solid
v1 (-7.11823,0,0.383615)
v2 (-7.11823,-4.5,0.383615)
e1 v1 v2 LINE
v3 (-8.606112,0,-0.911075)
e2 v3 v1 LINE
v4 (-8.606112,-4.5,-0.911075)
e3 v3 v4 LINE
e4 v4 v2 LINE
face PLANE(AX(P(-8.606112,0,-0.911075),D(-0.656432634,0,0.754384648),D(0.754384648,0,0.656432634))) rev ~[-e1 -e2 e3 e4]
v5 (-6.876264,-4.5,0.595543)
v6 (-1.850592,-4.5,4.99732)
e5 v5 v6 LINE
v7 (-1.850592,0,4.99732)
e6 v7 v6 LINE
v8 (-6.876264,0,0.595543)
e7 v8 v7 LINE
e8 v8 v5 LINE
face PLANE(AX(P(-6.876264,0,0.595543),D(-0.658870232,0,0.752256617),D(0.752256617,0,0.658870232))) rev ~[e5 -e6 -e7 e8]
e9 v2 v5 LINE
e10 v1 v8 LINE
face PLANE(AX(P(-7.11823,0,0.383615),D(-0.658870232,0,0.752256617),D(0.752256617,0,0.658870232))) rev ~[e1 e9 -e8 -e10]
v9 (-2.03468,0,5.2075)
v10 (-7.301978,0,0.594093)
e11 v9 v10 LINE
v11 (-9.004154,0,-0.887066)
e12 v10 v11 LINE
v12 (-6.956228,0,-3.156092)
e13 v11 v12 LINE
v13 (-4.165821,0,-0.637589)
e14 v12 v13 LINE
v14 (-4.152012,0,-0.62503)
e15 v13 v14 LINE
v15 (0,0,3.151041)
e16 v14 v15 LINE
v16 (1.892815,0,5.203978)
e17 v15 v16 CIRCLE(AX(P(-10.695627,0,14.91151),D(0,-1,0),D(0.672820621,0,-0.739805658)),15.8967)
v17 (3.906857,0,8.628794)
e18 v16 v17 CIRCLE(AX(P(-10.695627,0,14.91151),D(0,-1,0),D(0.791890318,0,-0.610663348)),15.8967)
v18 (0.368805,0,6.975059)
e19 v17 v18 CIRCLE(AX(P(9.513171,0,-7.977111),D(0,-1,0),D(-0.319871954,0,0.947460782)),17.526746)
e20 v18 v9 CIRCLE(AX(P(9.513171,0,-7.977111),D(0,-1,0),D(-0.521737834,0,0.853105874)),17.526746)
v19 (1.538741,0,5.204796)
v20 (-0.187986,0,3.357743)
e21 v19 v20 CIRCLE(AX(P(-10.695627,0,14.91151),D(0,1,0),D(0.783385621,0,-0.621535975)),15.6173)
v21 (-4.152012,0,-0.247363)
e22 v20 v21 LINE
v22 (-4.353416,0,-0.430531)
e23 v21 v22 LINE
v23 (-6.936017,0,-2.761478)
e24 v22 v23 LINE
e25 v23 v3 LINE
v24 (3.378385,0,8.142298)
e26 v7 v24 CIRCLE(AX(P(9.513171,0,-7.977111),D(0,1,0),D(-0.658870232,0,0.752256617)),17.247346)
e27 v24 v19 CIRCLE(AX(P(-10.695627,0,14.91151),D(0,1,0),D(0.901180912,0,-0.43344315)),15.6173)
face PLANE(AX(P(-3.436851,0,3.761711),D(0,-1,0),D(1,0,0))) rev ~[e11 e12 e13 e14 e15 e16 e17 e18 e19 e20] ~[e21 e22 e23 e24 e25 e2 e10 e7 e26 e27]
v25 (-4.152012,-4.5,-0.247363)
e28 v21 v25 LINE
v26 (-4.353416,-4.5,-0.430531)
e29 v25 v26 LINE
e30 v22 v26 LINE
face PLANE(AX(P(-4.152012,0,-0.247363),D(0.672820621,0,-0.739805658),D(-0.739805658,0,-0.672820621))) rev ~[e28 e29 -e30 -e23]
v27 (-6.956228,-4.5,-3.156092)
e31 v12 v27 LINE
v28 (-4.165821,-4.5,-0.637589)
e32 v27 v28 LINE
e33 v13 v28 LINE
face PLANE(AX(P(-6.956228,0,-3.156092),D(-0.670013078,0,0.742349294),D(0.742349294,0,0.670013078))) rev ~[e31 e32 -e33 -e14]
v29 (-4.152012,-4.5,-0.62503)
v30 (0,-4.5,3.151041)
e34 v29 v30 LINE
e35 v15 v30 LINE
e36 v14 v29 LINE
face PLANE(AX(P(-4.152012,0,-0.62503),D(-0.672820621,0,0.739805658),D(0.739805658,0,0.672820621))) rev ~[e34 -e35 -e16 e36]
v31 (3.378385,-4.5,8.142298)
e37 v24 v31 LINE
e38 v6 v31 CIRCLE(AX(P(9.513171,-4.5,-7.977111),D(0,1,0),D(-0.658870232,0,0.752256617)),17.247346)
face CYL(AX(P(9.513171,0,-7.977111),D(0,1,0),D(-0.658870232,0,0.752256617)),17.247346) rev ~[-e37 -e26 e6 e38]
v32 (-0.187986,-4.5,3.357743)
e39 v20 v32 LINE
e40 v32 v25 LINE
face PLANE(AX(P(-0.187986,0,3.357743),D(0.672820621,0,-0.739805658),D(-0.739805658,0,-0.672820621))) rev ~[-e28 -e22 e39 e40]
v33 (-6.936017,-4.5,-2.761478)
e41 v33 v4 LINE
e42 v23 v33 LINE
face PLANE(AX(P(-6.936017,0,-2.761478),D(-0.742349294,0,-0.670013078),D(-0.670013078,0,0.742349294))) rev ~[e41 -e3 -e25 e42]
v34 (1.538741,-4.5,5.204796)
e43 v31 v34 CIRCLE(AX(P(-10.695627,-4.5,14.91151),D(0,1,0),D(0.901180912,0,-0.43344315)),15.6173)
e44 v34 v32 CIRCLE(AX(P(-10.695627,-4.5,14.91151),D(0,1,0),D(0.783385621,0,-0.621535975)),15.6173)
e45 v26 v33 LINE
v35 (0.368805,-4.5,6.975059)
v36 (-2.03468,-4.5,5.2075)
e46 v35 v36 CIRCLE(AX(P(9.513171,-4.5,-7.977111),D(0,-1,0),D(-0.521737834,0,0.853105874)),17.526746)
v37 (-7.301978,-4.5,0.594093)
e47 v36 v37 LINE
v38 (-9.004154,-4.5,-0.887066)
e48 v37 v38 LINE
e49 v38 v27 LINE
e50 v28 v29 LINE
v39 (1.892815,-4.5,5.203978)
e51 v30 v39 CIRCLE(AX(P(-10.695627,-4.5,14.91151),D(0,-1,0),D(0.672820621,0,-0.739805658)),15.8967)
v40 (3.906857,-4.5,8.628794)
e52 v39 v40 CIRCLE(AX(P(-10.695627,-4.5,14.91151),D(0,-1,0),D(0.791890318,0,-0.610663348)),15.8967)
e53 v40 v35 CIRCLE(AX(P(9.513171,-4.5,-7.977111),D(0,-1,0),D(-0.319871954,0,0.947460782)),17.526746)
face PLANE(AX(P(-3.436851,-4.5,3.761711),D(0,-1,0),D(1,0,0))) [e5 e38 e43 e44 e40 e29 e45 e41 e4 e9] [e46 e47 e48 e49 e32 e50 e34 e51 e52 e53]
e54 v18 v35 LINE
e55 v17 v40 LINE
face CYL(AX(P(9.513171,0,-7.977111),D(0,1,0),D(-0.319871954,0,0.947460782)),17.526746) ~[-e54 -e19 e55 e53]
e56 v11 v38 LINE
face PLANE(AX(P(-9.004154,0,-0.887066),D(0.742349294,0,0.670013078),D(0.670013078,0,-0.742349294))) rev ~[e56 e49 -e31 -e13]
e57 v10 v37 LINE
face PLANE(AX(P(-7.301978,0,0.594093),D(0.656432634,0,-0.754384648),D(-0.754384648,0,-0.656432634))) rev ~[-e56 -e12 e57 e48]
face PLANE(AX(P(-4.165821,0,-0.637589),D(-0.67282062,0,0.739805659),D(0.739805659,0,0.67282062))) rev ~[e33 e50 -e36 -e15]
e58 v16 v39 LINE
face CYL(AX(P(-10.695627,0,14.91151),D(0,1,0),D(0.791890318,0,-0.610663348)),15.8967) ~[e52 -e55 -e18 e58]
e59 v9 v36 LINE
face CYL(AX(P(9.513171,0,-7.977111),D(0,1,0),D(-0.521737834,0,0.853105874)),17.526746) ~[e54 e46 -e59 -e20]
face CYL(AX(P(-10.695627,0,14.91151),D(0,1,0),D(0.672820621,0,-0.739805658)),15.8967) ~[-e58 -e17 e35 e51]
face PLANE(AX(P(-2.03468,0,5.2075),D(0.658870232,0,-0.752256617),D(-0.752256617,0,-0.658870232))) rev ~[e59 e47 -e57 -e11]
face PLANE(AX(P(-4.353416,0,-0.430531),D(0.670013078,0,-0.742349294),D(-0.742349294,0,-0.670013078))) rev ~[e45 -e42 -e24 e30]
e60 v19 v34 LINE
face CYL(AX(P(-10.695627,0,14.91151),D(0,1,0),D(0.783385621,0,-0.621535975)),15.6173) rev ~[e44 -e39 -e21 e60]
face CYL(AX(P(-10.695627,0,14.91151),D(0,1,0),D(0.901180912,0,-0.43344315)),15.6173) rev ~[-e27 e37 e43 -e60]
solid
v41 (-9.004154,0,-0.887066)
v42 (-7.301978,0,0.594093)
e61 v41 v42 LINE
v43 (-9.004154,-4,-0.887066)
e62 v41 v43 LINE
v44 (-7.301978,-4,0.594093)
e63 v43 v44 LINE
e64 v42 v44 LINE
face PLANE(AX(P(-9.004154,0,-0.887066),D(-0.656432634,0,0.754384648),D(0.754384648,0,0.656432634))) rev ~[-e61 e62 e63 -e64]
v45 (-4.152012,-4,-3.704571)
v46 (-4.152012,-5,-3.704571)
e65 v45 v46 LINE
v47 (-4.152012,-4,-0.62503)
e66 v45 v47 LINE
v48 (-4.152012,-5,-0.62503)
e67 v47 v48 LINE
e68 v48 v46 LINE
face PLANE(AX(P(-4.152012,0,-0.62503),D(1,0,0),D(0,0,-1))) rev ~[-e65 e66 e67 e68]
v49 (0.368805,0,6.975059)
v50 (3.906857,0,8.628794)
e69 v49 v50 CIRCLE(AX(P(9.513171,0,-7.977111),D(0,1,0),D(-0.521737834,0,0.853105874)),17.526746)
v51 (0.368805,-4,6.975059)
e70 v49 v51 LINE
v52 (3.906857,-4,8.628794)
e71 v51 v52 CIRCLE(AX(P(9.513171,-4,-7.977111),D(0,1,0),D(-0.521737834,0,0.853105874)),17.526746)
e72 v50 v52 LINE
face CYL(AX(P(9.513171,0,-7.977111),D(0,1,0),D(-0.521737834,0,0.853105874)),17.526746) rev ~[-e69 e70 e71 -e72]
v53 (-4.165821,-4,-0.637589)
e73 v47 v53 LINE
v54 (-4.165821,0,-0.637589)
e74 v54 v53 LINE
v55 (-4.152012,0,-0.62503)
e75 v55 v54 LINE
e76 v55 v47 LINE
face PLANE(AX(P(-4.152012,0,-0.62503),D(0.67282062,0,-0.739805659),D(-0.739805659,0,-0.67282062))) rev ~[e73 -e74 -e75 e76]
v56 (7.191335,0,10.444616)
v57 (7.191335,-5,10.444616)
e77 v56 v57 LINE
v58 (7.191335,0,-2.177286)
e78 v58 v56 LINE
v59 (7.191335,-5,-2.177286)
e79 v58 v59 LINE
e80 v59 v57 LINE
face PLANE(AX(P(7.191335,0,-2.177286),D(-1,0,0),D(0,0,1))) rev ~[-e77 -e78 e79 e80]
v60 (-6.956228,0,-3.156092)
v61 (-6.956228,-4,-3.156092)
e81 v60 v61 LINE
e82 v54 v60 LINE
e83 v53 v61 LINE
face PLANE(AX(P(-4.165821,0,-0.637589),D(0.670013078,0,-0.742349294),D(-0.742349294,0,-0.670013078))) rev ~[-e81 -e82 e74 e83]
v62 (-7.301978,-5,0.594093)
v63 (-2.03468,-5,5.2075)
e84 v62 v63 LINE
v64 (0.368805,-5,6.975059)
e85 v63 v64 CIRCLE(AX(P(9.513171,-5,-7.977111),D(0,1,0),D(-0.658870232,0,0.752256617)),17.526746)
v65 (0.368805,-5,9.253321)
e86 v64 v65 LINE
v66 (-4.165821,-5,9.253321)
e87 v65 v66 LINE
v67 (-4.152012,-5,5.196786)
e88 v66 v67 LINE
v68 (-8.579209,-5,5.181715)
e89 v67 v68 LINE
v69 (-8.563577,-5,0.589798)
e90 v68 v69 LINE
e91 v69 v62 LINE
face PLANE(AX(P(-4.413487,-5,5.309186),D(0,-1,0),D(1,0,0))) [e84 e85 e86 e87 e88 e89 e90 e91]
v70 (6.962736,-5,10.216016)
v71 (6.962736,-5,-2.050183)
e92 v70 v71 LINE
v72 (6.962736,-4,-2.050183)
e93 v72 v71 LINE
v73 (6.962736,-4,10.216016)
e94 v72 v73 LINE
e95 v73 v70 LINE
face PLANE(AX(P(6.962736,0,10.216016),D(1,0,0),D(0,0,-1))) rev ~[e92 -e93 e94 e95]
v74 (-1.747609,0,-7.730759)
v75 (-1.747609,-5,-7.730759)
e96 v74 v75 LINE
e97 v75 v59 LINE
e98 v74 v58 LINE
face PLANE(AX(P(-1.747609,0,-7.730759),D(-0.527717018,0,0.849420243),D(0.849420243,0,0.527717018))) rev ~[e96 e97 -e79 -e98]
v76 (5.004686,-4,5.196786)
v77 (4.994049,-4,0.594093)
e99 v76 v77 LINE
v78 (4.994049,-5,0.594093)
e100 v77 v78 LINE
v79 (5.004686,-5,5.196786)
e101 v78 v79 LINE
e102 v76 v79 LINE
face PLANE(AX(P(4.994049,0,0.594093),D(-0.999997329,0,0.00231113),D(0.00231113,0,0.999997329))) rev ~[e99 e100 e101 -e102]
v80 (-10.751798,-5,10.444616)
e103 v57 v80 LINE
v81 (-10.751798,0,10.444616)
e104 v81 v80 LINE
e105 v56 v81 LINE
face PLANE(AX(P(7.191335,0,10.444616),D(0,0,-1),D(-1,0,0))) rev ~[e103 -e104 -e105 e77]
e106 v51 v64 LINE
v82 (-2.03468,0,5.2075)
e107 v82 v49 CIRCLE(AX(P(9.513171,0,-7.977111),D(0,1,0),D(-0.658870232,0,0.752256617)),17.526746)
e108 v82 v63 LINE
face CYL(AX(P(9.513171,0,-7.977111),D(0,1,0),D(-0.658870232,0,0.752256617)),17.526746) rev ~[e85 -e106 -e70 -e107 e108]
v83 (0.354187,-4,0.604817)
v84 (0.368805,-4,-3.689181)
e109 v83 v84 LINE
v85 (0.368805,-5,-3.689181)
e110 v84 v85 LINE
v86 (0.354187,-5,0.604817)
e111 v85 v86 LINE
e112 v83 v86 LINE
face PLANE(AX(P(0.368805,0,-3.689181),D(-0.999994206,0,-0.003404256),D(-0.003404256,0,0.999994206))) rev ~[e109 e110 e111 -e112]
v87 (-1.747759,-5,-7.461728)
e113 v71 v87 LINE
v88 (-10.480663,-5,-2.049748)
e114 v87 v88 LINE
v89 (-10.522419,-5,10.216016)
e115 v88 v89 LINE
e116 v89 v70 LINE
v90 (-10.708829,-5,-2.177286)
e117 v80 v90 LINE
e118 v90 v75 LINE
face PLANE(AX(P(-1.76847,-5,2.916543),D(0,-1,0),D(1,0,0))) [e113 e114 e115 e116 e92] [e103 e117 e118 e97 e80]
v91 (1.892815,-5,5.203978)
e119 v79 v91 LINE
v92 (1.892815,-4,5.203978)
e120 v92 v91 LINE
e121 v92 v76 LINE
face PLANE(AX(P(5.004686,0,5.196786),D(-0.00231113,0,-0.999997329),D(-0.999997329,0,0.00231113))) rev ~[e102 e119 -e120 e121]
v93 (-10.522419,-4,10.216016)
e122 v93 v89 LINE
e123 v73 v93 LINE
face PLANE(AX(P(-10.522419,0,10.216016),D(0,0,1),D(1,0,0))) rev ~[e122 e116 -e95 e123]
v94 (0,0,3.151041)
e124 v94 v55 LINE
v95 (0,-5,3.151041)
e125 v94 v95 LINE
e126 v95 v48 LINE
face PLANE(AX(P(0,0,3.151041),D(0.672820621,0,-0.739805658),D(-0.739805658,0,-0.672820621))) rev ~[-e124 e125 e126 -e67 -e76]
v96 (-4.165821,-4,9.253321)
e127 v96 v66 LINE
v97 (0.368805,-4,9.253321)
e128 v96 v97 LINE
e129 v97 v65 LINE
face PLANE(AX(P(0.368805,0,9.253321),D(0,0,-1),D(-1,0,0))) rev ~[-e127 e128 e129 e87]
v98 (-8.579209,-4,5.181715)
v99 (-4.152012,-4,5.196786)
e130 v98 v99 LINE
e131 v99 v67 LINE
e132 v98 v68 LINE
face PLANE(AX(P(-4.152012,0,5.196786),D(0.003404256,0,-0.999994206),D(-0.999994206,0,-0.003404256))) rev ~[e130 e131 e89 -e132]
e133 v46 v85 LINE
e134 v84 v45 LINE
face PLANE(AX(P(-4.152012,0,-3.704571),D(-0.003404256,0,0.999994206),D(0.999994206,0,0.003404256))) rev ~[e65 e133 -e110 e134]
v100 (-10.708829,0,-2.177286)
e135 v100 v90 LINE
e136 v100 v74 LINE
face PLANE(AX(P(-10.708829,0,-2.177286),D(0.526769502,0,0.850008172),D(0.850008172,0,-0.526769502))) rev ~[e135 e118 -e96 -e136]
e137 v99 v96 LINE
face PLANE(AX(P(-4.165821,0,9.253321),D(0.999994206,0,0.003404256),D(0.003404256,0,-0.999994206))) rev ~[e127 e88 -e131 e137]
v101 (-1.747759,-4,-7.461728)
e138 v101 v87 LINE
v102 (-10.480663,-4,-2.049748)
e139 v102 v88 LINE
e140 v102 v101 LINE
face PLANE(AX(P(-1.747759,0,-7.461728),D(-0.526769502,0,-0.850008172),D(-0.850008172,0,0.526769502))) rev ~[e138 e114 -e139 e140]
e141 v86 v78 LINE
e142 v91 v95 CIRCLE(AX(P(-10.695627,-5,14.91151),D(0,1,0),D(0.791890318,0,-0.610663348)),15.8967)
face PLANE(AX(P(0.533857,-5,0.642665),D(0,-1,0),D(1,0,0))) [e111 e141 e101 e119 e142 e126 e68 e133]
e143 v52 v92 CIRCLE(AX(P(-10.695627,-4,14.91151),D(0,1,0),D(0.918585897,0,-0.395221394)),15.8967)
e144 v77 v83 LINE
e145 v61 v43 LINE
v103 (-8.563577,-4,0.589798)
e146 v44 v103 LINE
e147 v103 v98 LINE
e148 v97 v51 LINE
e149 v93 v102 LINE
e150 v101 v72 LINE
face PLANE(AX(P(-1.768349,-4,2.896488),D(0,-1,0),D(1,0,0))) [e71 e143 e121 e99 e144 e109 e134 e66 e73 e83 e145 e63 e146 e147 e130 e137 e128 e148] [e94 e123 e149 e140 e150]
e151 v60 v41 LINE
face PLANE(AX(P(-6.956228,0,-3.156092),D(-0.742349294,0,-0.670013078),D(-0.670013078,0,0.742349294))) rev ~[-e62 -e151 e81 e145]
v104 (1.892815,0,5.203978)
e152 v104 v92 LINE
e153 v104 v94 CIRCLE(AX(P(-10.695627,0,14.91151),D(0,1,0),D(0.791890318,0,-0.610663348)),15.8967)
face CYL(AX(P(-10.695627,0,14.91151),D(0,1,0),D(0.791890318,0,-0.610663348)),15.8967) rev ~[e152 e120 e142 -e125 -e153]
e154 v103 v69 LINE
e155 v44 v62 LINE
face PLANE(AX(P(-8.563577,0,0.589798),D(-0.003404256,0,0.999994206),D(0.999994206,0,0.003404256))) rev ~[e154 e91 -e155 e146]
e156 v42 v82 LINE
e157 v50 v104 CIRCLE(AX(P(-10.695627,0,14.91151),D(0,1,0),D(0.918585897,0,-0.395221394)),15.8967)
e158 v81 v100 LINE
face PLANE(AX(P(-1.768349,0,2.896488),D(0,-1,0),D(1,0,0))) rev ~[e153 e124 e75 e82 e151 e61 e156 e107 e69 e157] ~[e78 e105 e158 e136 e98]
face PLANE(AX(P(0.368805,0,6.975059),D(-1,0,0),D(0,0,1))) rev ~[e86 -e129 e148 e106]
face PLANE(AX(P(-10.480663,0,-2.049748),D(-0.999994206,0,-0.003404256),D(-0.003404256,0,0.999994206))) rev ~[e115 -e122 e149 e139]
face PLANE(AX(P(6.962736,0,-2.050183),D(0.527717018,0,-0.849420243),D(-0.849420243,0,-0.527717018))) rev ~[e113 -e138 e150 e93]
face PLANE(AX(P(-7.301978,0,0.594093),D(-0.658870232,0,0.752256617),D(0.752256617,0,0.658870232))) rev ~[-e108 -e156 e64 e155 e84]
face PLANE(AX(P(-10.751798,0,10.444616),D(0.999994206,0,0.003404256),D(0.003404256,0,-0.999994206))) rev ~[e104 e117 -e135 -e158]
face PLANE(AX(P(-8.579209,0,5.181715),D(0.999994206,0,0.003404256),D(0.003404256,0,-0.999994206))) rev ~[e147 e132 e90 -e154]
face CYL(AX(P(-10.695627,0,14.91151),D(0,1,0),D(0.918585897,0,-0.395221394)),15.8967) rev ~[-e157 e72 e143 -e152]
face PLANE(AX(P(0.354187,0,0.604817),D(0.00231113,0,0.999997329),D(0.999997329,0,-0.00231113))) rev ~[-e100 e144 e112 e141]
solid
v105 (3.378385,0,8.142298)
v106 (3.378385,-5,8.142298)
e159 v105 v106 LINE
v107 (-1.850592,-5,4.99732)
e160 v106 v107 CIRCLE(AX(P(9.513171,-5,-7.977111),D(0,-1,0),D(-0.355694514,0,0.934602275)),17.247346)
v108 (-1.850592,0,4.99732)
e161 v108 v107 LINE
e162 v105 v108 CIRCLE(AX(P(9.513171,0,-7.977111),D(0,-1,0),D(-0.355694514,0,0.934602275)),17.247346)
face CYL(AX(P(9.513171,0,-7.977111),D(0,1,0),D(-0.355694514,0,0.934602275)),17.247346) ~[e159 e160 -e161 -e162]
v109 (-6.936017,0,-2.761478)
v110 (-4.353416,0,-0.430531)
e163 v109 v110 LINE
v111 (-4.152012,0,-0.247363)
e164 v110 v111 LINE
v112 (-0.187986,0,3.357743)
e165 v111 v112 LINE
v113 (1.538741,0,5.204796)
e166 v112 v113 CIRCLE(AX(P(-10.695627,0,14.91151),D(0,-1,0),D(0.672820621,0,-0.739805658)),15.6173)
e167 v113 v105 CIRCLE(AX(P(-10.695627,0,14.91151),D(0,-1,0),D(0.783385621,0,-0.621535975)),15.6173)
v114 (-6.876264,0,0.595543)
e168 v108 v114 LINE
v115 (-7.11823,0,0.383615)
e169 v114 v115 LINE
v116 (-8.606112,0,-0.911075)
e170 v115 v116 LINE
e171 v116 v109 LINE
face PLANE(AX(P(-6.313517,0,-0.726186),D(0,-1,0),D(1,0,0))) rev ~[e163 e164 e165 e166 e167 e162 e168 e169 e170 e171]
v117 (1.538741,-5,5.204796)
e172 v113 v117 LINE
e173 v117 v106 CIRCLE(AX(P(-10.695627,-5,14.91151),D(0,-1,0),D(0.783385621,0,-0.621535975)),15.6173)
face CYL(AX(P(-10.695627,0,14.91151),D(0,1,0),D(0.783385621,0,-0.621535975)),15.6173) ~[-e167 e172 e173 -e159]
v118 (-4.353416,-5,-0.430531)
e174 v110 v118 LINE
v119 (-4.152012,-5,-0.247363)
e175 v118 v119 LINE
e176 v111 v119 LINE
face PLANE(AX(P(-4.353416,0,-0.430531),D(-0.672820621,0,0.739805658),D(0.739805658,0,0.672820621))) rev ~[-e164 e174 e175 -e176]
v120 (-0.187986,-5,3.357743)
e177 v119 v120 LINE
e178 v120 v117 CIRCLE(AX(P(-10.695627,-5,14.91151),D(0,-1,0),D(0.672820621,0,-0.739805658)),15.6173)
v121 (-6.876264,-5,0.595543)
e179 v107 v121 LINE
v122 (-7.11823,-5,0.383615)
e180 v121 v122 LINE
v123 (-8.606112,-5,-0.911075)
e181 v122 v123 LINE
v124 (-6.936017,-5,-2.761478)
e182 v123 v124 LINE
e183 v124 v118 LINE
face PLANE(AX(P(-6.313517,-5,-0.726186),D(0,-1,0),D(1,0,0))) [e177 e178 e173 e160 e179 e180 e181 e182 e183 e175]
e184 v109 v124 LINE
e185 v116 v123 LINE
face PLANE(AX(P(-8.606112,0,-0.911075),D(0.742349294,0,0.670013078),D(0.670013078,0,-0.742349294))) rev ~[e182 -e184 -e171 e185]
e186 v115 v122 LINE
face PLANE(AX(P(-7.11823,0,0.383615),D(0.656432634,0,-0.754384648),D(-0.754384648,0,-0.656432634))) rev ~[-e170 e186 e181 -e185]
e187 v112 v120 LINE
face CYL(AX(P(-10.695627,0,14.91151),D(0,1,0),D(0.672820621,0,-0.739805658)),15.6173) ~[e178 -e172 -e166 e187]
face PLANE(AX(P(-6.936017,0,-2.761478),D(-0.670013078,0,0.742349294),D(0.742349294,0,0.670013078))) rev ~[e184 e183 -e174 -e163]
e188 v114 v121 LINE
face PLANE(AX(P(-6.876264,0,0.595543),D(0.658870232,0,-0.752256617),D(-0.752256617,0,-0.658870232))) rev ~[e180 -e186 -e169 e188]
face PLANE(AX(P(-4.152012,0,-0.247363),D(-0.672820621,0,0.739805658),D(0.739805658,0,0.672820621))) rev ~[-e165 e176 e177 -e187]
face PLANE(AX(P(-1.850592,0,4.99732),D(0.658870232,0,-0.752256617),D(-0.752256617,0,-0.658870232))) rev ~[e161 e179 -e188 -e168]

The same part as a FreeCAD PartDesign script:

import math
import FreeCAD as App
import Part
import Sketcher

V = App.Vector
Q = App.Units.Quantity

doc = App.newDocument("Part")
params = doc.addObject("Spreadsheet::Sheet", "Params")
for row, (alias, value) in enumerate([
    ("pad1_length", "5 mm"),
    ("pad2_length", "4 mm"),
    ("pad3_length", "5 mm"),
    ("pad4_length", "5 mm"),
    ("pad5_length", "4.5 mm"),
], start=1):
    params.set(f"A{row}", alias)
    params.set(f"B{row}", "=" + value)
    params.setAlias(f"B{row}", alias)

body = doc.addObject("PartDesign::Body", "Body")

# Sketch on XZ plane
sketch1 = body.newObject("Sketcher::SketchObject", "Sketch")
sketch1.AttachmentSupport = (doc.getObject("XZ_Plane"), [""])
sketch1.MapMode = "FlatFace"
sketch1.addGeometry([
    Part.LineSegment(V(7.191335, 10.444616, 0), V(-10.751798, 10.444616, 0)),  # 0
    Part.LineSegment(V(-10.751798, 10.444616, 0), V(-10.708829, -2.177286, 0)),  # 1
    Part.LineSegment(V(-10.708829, -2.177286, 0), V(-1.747609, -7.730759, 0)),  # 2
    Part.LineSegment(V(-1.747609, -7.730759, 0), V(7.191335, -2.177286, 0)),  # 3
    Part.LineSegment(V(7.191335, -2.177286, 0), V(7.191335, 10.444616, 0)),  # 4
    Part.LineSegment(V(-1.747759, -7.461728, 0), V(-10.480663, -2.049748, 0)),  # 5
    Part.LineSegment(V(-10.480663, -2.049748, 0), V(-10.522419, 10.216016, 0)),  # 6
    Part.LineSegment(V(-10.522419, 10.216016, 0), V(6.962736, 10.216016, 0)),  # 7
    Part.LineSegment(V(6.962736, 10.216016, 0), V(6.962736, -2.050183, 0)),  # 8
    Part.LineSegment(V(6.962736, -2.050183, 0), V(-1.747759, -7.461728, 0)),  # 9
], False)
sketch1.addConstraint([
    Sketcher.Constraint("Coincident", 0, 2, 1, 1),
    Sketcher.Constraint("Coincident", 1, 2, 2, 1),
    Sketcher.Constraint("Coincident", 2, 2, 3, 1),
    Sketcher.Constraint("Coincident", 3, 2, 4, 1),
    Sketcher.Constraint("Coincident", 4, 2, 0, 1),
    Sketcher.Constraint("Coincident", 5, 2, 6, 1),
    Sketcher.Constraint("Coincident", 6, 2, 7, 1),
    Sketcher.Constraint("Coincident", 7, 2, 8, 1),
    Sketcher.Constraint("Coincident", 8, 2, 9, 1),
    Sketcher.Constraint("Coincident", 9, 2, 5, 1),
    Sketcher.Constraint("Horizontal", 0),
    Sketcher.Constraint("Vertical", 4),
    Sketcher.Constraint("Horizontal", 7),
    Sketcher.Constraint("Vertical", 8),
    Sketcher.Constraint("Parallel", 2, 5),
    Sketcher.Constraint("Parallel", 1, 6),
    Sketcher.Constraint("Parallel", 3, 9),
    Sketcher.Constraint("Horizontal", 1, 2, 3, 2),
    Sketcher.Constraint("DistanceY", 4, 1, 4, 2, Q("12.621902 mm")),
    Sketcher.Constraint("DistanceY", 8, 2, 8, 1, Q("12.266199 mm")),
    Sketcher.Constraint("DistanceY", 6, 2, 0, 2, Q("0.2286 mm")),
    Sketcher.Constraint("DistanceX", 7, 2, 4, 2, Q("0.2286 mm")),
    Sketcher.Constraint("DistanceX", 5, 2, 8, 2, Q("17.443398 mm")),
    Sketcher.Constraint("Distance", 2, Q("10.542511 mm")),
    Sketcher.Constraint("DistanceX", 0, 2, 0, 1, Q("17.943133 mm")),
    Sketcher.Constraint("DistanceX", 7, 1, 7, 2, Q("17.485154 mm")),
    Sketcher.Constraint("DistanceX", 1, 2, -1, 1, Q("10.708829 mm")),
    Sketcher.Constraint("DistanceX", 2, 2, -1, 1, Q("1.747609 mm")),
    Sketcher.Constraint("DistanceY", 2, 2, -1, 1, Q("7.730759 mm")),
    Sketcher.Constraint("DistanceX", 9, 2, -1, 1, Q("1.747759 mm")),
])
pad1 = body.newObject("PartDesign::Pad", "Pad")
pad1.Profile = sketch1
pad1.setExpression("Length", "Params.pad1_length")

# Sketch on XZ plane
sketch2 = body.newObject("Sketcher::SketchObject", "Sketch001")
sketch2.AttachmentSupport = (doc.getObject("XZ_Plane"), [""])
sketch2.MapMode = "FlatFace"
sketch2.addGeometry([
    Part.LineSegment(V(6.962736, 10.216016, 0), V(-10.522419, 10.216016, 0)),  # 0
    Part.LineSegment(V(-10.522419, 10.216016, 0), V(-10.480663, -2.049748, 0)),  # 1
    Part.LineSegment(V(-10.480663, -2.049748, 0), V(-1.747759, -7.461728, 0)),  # 2
    Part.LineSegment(V(-1.747759, -7.461728, 0), V(6.962736, -2.050183, 0)),  # 3
    Part.LineSegment(V(6.962736, -2.050183, 0), V(6.962736, 10.216016, 0)),  # 4
    Part.LineSegment(V(-8.579209, 5.181715, 0), V(-4.152012, 5.196786, 0)),  # 5
    Part.LineSegment(V(-4.152012, 5.196786, 0), V(-4.165821, 9.253321, 0)),  # 6
    Part.LineSegment(V(-4.165821, 9.253321, 0), V(0.368805, 9.253321, 0)),  # 7
    Part.LineSegment(V(0.368805, 9.253321, 0), V(0.368805, 6.975059, 0)),  # 8
    Part.ArcOfCircle(Part.Circle(V(9.513171, -7.977111, 0), V(0, 0, 1), 17.526746), math.radians(108.655181), math.radians(121.448894)),  # 9
    Part.ArcOfCircle(Part.Circle(V(-10.695627, 14.91151, 0), V(0, 0, 1), 15.8967), math.radians(-37.637483), math.radians(-23.279783)),  # 10
    Part.LineSegment(V(1.892815, 5.203978, 0), V(5.004686, 5.196786, 0)),  # 11
    Part.LineSegment(V(5.004686, 5.196786, 0), V(4.994049, 0.594093, 0)),  # 12
    Part.LineSegment(V(4.994049, 0.594093, 0), V(0.354187, 0.604817, 0)),  # 13
    Part.LineSegment(V(0.354187, 0.604817, 0), V(0.368805, -3.689181, 0)),  # 14
    Part.LineSegment(V(0.368805, -3.689181, 0), V(-4.152012, -3.704571, 0)),  # 15
    Part.LineSegment(V(-4.152012, -3.704571, 0), V(-4.152012, -0.62503, 0)),  # 16
    Part.LineSegment(V(-4.152012, -0.62503, 0), V(-4.165821, -0.637589, 0)),  # 17
    Part.LineSegment(V(-4.165821, -0.637589, 0), V(-6.956228, -3.156092, 0)),  # 18
    Part.LineSegment(V(-6.956228, -3.156092, 0), V(-9.004154, -0.887066, 0)),  # 19
    Part.LineSegment(V(-9.004154, -0.887066, 0), V(-7.301978, 0.594093, 0)),  # 20
    Part.LineSegment(V(-7.301978, 0.594093, 0), V(-8.563577, 0.589798, 0)),  # 21
    Part.LineSegment(V(-8.563577, 0.589798, 0), V(-8.579209, 5.181715, 0)),  # 22
], False)
sketch2.addConstraint([
    Sketcher.Constraint("Coincident", 0, 2, 1, 1),
    Sketcher.Constraint("Coincident", 1, 2, 2, 1),
    Sketcher.Constraint("Coincident", 2, 2, 3, 1),
    Sketcher.Constraint("Coincident", 3, 2, 4, 1),
    Sketcher.Constraint("Coincident", 4, 2, 0, 1),
    Sketcher.Constraint("Coincident", 5, 2, 6, 1),
    Sketcher.Constraint("Coincident", 6, 2, 7, 1),
    Sketcher.Constraint("Coincident", 7, 2, 8, 1),
    Sketcher.Constraint("Coincident", 8, 2, 9, 2),
    Sketcher.Constraint("Coincident", 9, 1, 10, 2),
    Sketcher.Constraint("Coincident", 10, 1, 11, 1),
    Sketcher.Constraint("Coincident", 11, 2, 12, 1),
    Sketcher.Constraint("Coincident", 12, 2, 13, 1),
    Sketcher.Constraint("Coincident", 13, 2, 14, 1),
    Sketcher.Constraint("Coincident", 14, 2, 15, 1),
    Sketcher.Constraint("Coincident", 15, 2, 16, 1),
    Sketcher.Constraint("Coincident", 16, 2, 17, 1),
    Sketcher.Constraint("Coincident", 17, 2, 18, 1),
    Sketcher.Constraint("Coincident", 18, 2, 19, 1),
    Sketcher.Constraint("Coincident", 19, 2, 20, 1),
    Sketcher.Constraint("Coincident", 20, 2, 21, 1),
    Sketcher.Constraint("Coincident", 21, 2, 22, 1),
    Sketcher.Constraint("Coincident", 22, 2, 5, 1),
    Sketcher.Constraint("Horizontal", 0),
    Sketcher.Constraint("Vertical", 4),
    Sketcher.Constraint("Horizontal", 7),
    Sketcher.Constraint("Vertical", 8),
    Sketcher.Constraint("Vertical", 16),
    Sketcher.Constraint("Radius", 10, Q("15.8967 mm")),
    Sketcher.Constraint("DistanceY", 4, 1, 4, 2, Q("12.266199 mm")),
    Sketcher.Constraint("Radius", 9, Q("17.526746 mm")),
    Sketcher.Constraint("DistanceY", 14, 2, 3, 2, Q("1.638998 mm")),
    Sketcher.Constraint("DistanceY", 8, 2, 8, 1, Q("2.278262 mm")),
    Sketcher.Constraint("DistanceY", 16, 1, 16, 2, Q("3.079541 mm")),
    Sketcher.Constraint("DistanceY", -1, 1, 21, 2, Q("0.589798 mm")),
    Sketcher.Constraint("DistanceX", 10, 3, 9, 3, Q("20.208799 mm")),
    Sketcher.Constraint("DistanceX", 1, 2, 3, 2, Q("17.443398 mm")),
    Sketcher.Constraint("DistanceY", 12, 2, 9, 1, Q("8.034701 mm")),
    Sketcher.Constraint("DistanceX", 5, 2, 13, 2, Q("4.506198 mm")),
    Sketcher.Constraint("DistanceX", 13, 2, 11, 2, Q("4.650499 mm")),
    Sketcher.Constraint("DistanceX", 15, 2, 13, 2, Q("4.506198 mm")),
    Sketcher.Constraint("DistanceX", 21, 2, 20, 2, Q("1.261599 mm")),
    Sketcher.Constraint("DistanceY", 22, 2, 0, 2, Q("5.034302 mm")),
    Sketcher.Constraint("Distance", 6, Q("4.056559 mm")),
    Sketcher.Constraint("Distance", 11, Q("3.111879 mm")),
    Sketcher.Constraint("DistanceX", 0, 2, 0, 1, Q("17.485154 mm")),
    Sketcher.Constraint("DistanceX", 7, 1, 7, 2, Q("4.534626 mm")),
    Sketcher.Constraint("DistanceX", -1, 1, 9, 3, Q("9.513171 mm")),
    Sketcher.Constraint("DistanceY", 9, 3, -1, 1, Q("7.977111 mm")),
    Sketcher.Constraint("DistanceY", -1, 1, 10, 3, Q("14.91151 mm")),
    Sketcher.Constraint("DistanceX", 0, 2, -1, 1, Q("10.522419 mm")),
    Sketcher.Constraint("DistanceX", 2, 2, -1, 1, Q("1.747759 mm")),
    Sketcher.Constraint("DistanceY", 2, 2, -1, 1, Q("7.461728 mm")),
    Sketcher.Constraint("DistanceX", 5, 2, -1, 1, Q("4.152012 mm")),
    Sketcher.Constraint("DistanceX", 6, 2, -1, 1, Q("4.165821 mm")),
    Sketcher.Constraint("DistanceX", -1, 1, 12, 2, Q("4.994049 mm")),
    Sketcher.Constraint("DistanceY", 14, 2, -1, 1, Q("3.689181 mm")),
    Sketcher.Constraint("DistanceY", 15, 2, -1, 1, Q("3.704571 mm")),
    Sketcher.Constraint("DistanceX", 17, 2, -1, 1, Q("4.165821 mm")),
    Sketcher.Constraint("DistanceY", 17, 2, -1, 1, Q("0.637589 mm")),
    Sketcher.Constraint("DistanceX", 20, 2, -1, 1, Q("7.301978 mm")),
    Sketcher.Constraint("DistanceX", 22, 2, -1, 1, Q("8.579209 mm")),
    Sketcher.Constraint("DistanceY", 2, 2, 1, 2, Q("5.41198 mm")),
    Sketcher.Constraint("DistanceY", 11, 2, 10, 1, Q("0.007192 mm")),
    Sketcher.Constraint("DistanceY", 13, 2, 10, 1, Q("4.599161 mm")),
    Sketcher.Constraint("DistanceX", 14, 2, 3, 2, Q("6.593931 mm")),
    Sketcher.Constraint("DistanceY", 15, 2, 18, 2, Q("0.548479 mm")),
    Sketcher.Constraint("DistanceX", 18, 2, 2, 2, Q("5.208469 mm")),
    Sketcher.Constraint("DistanceX", 1, 2, 19, 2, Q("1.476508 mm")),
    Sketcher.Constraint("DistanceY", 1, 2, 19, 2, Q("1.162681 mm")),
    Sketcher.Constraint("DistanceY", 19, 2, 20, 2, Q("1.48116 mm")),
])
pad2 = body.newObject("PartDesign::Pad", "Pad001")
pad2.Profile = sketch2
pad2.setExpression("Length", "Params.pad2_length")

# Sketch on XZ plane
sketch3 = body.newObject("Sketcher::SketchObject", "Sketch002")
sketch3.AttachmentSupport = (doc.getObject("XZ_Plane"), [""])
sketch3.MapMode = "FlatFace"
sketch3.addGeometry([
    Part.LineSegment(V(0.368805, 9.253321, 0), V(-4.165821, 9.253321, 0)),  # 0
    Part.LineSegment(V(-4.165821, 9.253321, 0), V(-4.152012, 5.196786, 0)),  # 1
    Part.LineSegment(V(-4.152012, 5.196786, 0), V(-8.579209, 5.181715, 0)),  # 2
    Part.LineSegment(V(-8.579209, 5.181715, 0), V(-8.563577, 0.589798, 0)),  # 3
    Part.LineSegment(V(-8.563577, 0.589798, 0), V(-7.301978, 0.594093, 0)),  # 4
    Part.LineSegment(V(-7.301978, 0.594093, 0), V(-2.03468, 5.2075, 0)),  # 5
    Part.ArcOfCircle(Part.Circle(V(9.513171, -7.977111, 0), V(0, 0, 1), 17.526746), math.radians(121.448894), math.radians(131.213767)),  # 6
    Part.LineSegment(V(0.368805, 6.975059, 0), V(0.368805, 9.253321, 0)),  # 7
    Part.LineSegment(V(5.004686, 5.196786, 0), V(1.892815, 5.203978, 0)),  # 8
    Part.ArcOfCircle(Part.Circle(V(-10.695627, 14.91151, 0), V(0, 0, 1), 15.8967), math.radians(-47.714863), math.radians(-37.637483)),  # 9
    Part.LineSegment(V(0, 3.151041, 0), V(-4.152012, -0.62503, 0)),  # 10
    Part.LineSegment(V(-4.152012, -0.62503, 0), V(-4.152012, -3.704571, 0)),  # 11
    Part.LineSegment(V(-4.152012, -3.704571, 0), V(0.368805, -3.689181, 0)),  # 12
    Part.LineSegment(V(0.368805, -3.689181, 0), V(0.354187, 0.604817, 0)),  # 13
    Part.LineSegment(V(0.354187, 0.604817, 0), V(4.994049, 0.594093, 0)),  # 14
    Part.LineSegment(V(4.994049, 0.594093, 0), V(5.004686, 5.196786, 0)),  # 15
], False)
sketch3.addConstraint([
    Sketcher.Constraint("Coincident", 0, 2, 1, 1),
    Sketcher.Constraint("Coincident", 1, 2, 2, 1),
    Sketcher.Constraint("Coincident", 2, 2, 3, 1),
    Sketcher.Constraint("Coincident", 3, 2, 4, 1),
    Sketcher.Constraint("Coincident", 4, 2, 5, 1),
    Sketcher.Constraint("Tangent", 5, 2, 6, 2),
    Sketcher.Constraint("Coincident", 6, 1, 7, 1),
    Sketcher.Constraint("Coincident", 7, 2, 0, 1),
    Sketcher.Constraint("Coincident", 8, 2, 9, 2),
    Sketcher.Constraint("Tangent", 9, 1, 10, 1),
    Sketcher.Constraint("Coincident", 10, 2, 11, 1),
    Sketcher.Constraint("Coincident", 11, 2, 12, 1),
    Sketcher.Constraint("Coincident", 12, 2, 13, 1),
    Sketcher.Constraint("Coincident", 13, 2, 14, 1),
    Sketcher.Constraint("Coincident", 14, 2, 15, 1),
    Sketcher.Constraint("Coincident", 15, 2, 8, 1),
    Sketcher.Constraint("Horizontal", 0),
    Sketcher.Constraint("Vertical", 7),
    Sketcher.Constraint("Vertical", 11),
    Sketcher.Constraint("PointOnObject", 9, 1, -2),
    Sketcher.Constraint("Perpendicular", 1, 2),
    Sketcher.Constraint("Perpendicular", 2, 3),
    Sketcher.Constraint("Perpendicular", 3, 4),
    Sketcher.Constraint("Parallel", 4, 12),
    Sketcher.Constraint("Perpendicular", 12, 13),
    Sketcher.Constraint("Parallel", 8, 14),
    Sketcher.Constraint("Perpendicular", 14, 15),
    Sketcher.Constraint("Horizontal", 4, 2, 14, 2),
    Sketcher.Constraint("Horizontal", 1, 2, 15, 2),
    Sketcher.Constraint("Vertical", 1, 2, 10, 2),
    Sketcher.Constraint("Vertical", 7, 2, 12, 2),
    Sketcher.Constraint("Radius", 9, Q("15.8967 mm")),
    Sketcher.Constraint("Radius", 6, Q("17.526746 mm")),
    Sketcher.Constraint("Distance", 10, Q("5.612301 mm")),
    Sketcher.Constraint("DistanceY", 7, 1, 7, 2, Q("2.278262 mm")),
    Sketcher.Constraint("DistanceY", 11, 2, 11, 1, Q("3.079541 mm")),
    Sketcher.Constraint("DistanceY", -1, 1, 3, 2, Q("0.589798 mm")),
    Sketcher.Constraint("DistanceY", -1, 1, 5, 2, Q("5.2075 mm")),
    Sketcher.Constraint("DistanceX", 9, 3, 6, 3, Q("20.208799 mm")),
    Sketcher.Constraint("DistanceX", 3, 2, 4, 2, Q("1.261599 mm")),
    Sketcher.Constraint("DistanceX", 4, 2, 5, 2, Q("5.267298 mm")),
    Sketcher.Constraint("DistanceX", 10, 2, 13, 2, Q("4.506198 mm")),
    Sketcher.Constraint("Distance", 1, Q("4.056559 mm")),
    Sketcher.Constraint("Distance", 8, Q("3.111879 mm")),
    Sketcher.Constraint("DistanceX", 0, 2, 0, 1, Q("4.534626 mm")),
    Sketcher.Constraint("DistanceX", -1, 1, 6, 3, Q("9.513171 mm")),
    Sketcher.Constraint("DistanceY", -1, 1, 9, 3, Q("14.91151 mm")),
    Sketcher.Constraint("DistanceX", -1, 1, 14, 2, Q("4.994049 mm")),
])
pad3 = body.newObject("PartDesign::Pad", "Pad002")
pad3.Profile = sketch3
pad3.setExpression("Length", "Params.pad3_length")
body2 = doc.addObject("PartDesign::Body", "Body001")

# Sketch on XZ plane
sketch4 = body2.newObject("Sketcher::SketchObject", "Sketch003")
sketch4.AttachmentSupport = (doc.getObject("XZ_Plane001"), [""])
sketch4.MapMode = "FlatFace"
sketch4.addGeometry([
    Part.LineSegment(V(-6.876264, 0.595543, 0), V(-7.11823, 0.383615, 0)),  # 0
    Part.LineSegment(V(-7.11823, 0.383615, 0), V(-8.606112, -0.911075, 0)),  # 1
    Part.LineSegment(V(-8.606112, -0.911075, 0), V(-6.936017, -2.761478, 0)),  # 2
    Part.LineSegment(V(-6.936017, -2.761478, 0), V(-4.353416, -0.430531, 0)),  # 3
    Part.LineSegment(V(-4.353416, -0.430531, 0), V(-4.152012, -0.247363, 0)),  # 4
    Part.LineSegment(V(-4.152012, -0.247363, 0), V(-0.187986, 3.357743, 0)),  # 5
    Part.ArcOfCircle(Part.Circle(V(-10.695627, 14.91151, 0), V(0, 0, 1), 15.6173), math.radians(-47.714863), math.radians(-38.428386)),  # 6
    Part.ArcOfCircle(Part.Circle(V(-10.695627, 14.91151, 0), V(0, 0, 1), 15.6173), math.radians(-38.428386), math.radians(-25.68627)),  # 7
    Part.ArcOfCircle(Part.Circle(V(9.513171, -7.977111, 0), V(0, 0, 1), 17.247346), math.radians(110.836016), math.radians(131.213767)),  # 8
    Part.LineSegment(V(-1.850592, 4.99732, 0), V(-6.876264, 0.595543, 0)),  # 9
], False)
sketch4.addConstraint([
    Sketcher.Constraint("Coincident", 0, 2, 1, 1),
    Sketcher.Constraint("Coincident", 1, 2, 2, 1),
    Sketcher.Constraint("Coincident", 2, 2, 3, 1),
    Sketcher.Constraint("Coincident", 3, 2, 4, 1),
    Sketcher.Constraint("Coincident", 4, 2, 5, 1),
    Sketcher.Constraint("Tangent", 5, 2, 6, 1),
    Sketcher.Constraint("Tangent", 6, 2, 7, 1),
    Sketcher.Constraint("Coincident", 7, 2, 8, 1),
    Sketcher.Constraint("Tangent", 8, 2, 9, 1),
    Sketcher.Constraint("Coincident", 9, 2, 0, 1),
    Sketcher.Constraint("Equal", 6, 7),
    Sketcher.Constraint("Perpendicular", 2, 3),
    Sketcher.Constraint("Parallel", 4, 5),
    Sketcher.Constraint("Parallel", 0, 9),
    Sketcher.Constraint("Radius", 6, Q("15.6173 mm")),
    Sketcher.Constraint("Radius", 8, Q("17.247346 mm")),
    Sketcher.Constraint("Distance", 5, Q("5.358198 mm")),
    Sketcher.Constraint("DistanceY", -1, 1, 7, 2, Q("8.142298 mm")),
    Sketcher.Constraint("DistanceX", 7, 3, 8, 3, Q("20.208799 mm")),
    Sketcher.Constraint("DistanceX", 0, 2, 8, 3, Q("16.631401 mm")),
    Sketcher.Constraint("DistanceX", 2, 2, 3, 2, Q("2.582601 mm")),
    Sketcher.Constraint("DistanceX", 1, 2, 4, 2, Q("4.4541 mm")),
    Sketcher.Constraint("DistanceY", 6, 2, 7, 2, Q("2.937502 mm")),
    Sketcher.Constraint("DistanceX", 3, 2, 7, 2, Q("7.731801 mm")),
    Sketcher.Constraint("Distance", 2, Q("2.49263 mm")),
    Sketcher.Constraint("Distance", 4, Q("0.272239 mm")),
    Sketcher.Constraint("DistanceY", -1, 1, 6, 3, Q("14.91151 mm")),
    Sketcher.Constraint("DistanceX", -1, 1, 8, 3, Q("9.513171 mm")),
    Sketcher.Constraint("DistanceX", 8, 2, -1, 1, Q("1.850592 mm")),
    Sketcher.Constraint("DistanceX", 9, 2, 3, 2, Q("2.522848 mm")),
])
pad4 = body2.newObject("PartDesign::Pad", "Pad003")
pad4.Profile = sketch4
pad4.setExpression("Length", "Params.pad4_length")
body3 = doc.addObject("PartDesign::Body", "Body002")

# Sketch on XZ plane
sketch5 = body3.newObject("Sketcher::SketchObject", "Sketch004")
sketch5.AttachmentSupport = (doc.getObject("XZ_Plane002"), [""])
sketch5.MapMode = "FlatFace"
sketch5.addGeometry([
    Part.ArcOfCircle(Part.Circle(V(9.513171, -7.977111, 0), V(0, 0, 1), 17.526746), math.radians(121.448894), math.radians(131.213767)),  # 0
    Part.LineSegment(V(-2.03468, 5.2075, 0), V(-7.301978, 0.594093, 0)),  # 1
    Part.LineSegment(V(-7.301978, 0.594093, 0), V(-9.004154, -0.887066, 0)),  # 2
    Part.LineSegment(V(-9.004154, -0.887066, 0), V(-6.956228, -3.156092, 0)),  # 3
    Part.LineSegment(V(-6.956228, -3.156092, 0), V(-4.165821, -0.637589, 0)),  # 4
    Part.LineSegment(V(-4.165821, -0.637589, 0), V(-4.152012, -0.62503, 0)),  # 5
    Part.LineSegment(V(-4.152012, -0.62503, 0), V(0, 3.151041, 0)),  # 6
    Part.ArcOfCircle(Part.Circle(V(-10.695627, 14.91151, 0), V(0, 0, 1), 15.8967), math.radians(-47.714863), math.radians(-37.637483)),  # 7
    Part.ArcOfCircle(Part.Circle(V(-10.695627, 14.91151, 0), V(0, 0, 1), 15.8967), math.radians(-37.637483), math.radians(-23.279783)),  # 8
    Part.ArcOfCircle(Part.Circle(V(9.513171, -7.977111, 0), V(0, 0, 1), 17.526746), math.radians(108.655181), math.radians(121.448894)),  # 9
    Part.ArcOfCircle(Part.Circle(V(-10.695627, 14.91151, 0), V(0, 0, 1), 15.6173), math.radians(-47.714863), math.radians(-38.428386)),  # 10
    Part.LineSegment(V(-0.187986, 3.357743, 0), V(-4.152012, -0.247363, 0)),  # 11
    Part.LineSegment(V(-4.152012, -0.247363, 0), V(-4.353416, -0.430531, 0)),  # 12
    Part.LineSegment(V(-4.353416, -0.430531, 0), V(-6.936017, -2.761478, 0)),  # 13
    Part.LineSegment(V(-6.936017, -2.761478, 0), V(-8.606112, -0.911075, 0)),  # 14
    Part.LineSegment(V(-8.606112, -0.911075, 0), V(-7.11823, 0.383615, 0)),  # 15
    Part.LineSegment(V(-7.11823, 0.383615, 0), V(-6.876264, 0.595543, 0)),  # 16
    Part.LineSegment(V(-6.876264, 0.595543, 0), V(-1.850592, 4.99732, 0)),  # 17
    Part.ArcOfCircle(Part.Circle(V(9.513171, -7.977111, 0), V(0, 0, 1), 17.247346), math.radians(110.836016), math.radians(131.213767)),  # 18
    Part.ArcOfCircle(Part.Circle(V(-10.695627, 14.91151, 0), V(0, 0, 1), 15.6173), math.radians(-38.428386), math.radians(-25.68627)),  # 19
], False)
sketch5.addConstraint([
    Sketcher.Constraint("Coincident", 0, 2, 1, 1),
    Sketcher.Constraint("Coincident", 1, 2, 2, 1),
    Sketcher.Constraint("Coincident", 2, 2, 3, 1),
    Sketcher.Constraint("Coincident", 3, 2, 4, 1),
    Sketcher.Constraint("Coincident", 4, 2, 5, 1),
    Sketcher.Constraint("Coincident", 5, 2, 6, 1),
    Sketcher.Constraint("Coincident", 6, 2, 7, 1),
    Sketcher.Constraint("Coincident", 7, 2, 8, 1),
    Sketcher.Constraint("Coincident", 8, 2, 9, 1),
    Sketcher.Constraint("Coincident", 9, 2, 0, 1),
    Sketcher.Constraint("Coincident", 10, 1, 11, 1),
    Sketcher.Constraint("Coincident", 11, 2, 12, 1),
    Sketcher.Constraint("Coincident", 12, 2, 13, 1),
    Sketcher.Constraint("Coincident", 13, 2, 14, 1),
    Sketcher.Constraint("Coincident", 14, 2, 15, 1),
    Sketcher.Constraint("Coincident", 15, 2, 16, 1),
    Sketcher.Constraint("Coincident", 16, 2, 17, 1),
    Sketcher.Constraint("Coincident", 17, 2, 18, 2),
    Sketcher.Constraint("Coincident", 18, 1, 19, 2),
    Sketcher.Constraint("Coincident", 19, 1, 10, 2),
    Sketcher.Constraint("Coincident", 8, 3, 7, 3),
    Sketcher.Constraint("Coincident", 9, 3, 0, 3),
    Sketcher.Constraint("Coincident", 10, 3, 7, 3),
    Sketcher.Constraint("Coincident", 18, 3, 0, 3),
    Sketcher.Constraint("Coincident", 19, 3, 7, 3),
    Sketcher.Constraint("PointOnObject", 6, 2, -2),
    Sketcher.Constraint("Radius", 7, Q("15.8967 mm")),
    Sketcher.Constraint("Radius", 10, Q("15.6173 mm")),
    Sketcher.Constraint("Radius", 0, Q("17.526746 mm")),
    Sketcher.Constraint("Radius", 18, Q("17.247346 mm")),
    Sketcher.Constraint("Distance", 6, Q("5.612301 mm")),
    Sketcher.Constraint("Distance", 11, Q("5.358198 mm")),
    Sketcher.Constraint("DistanceY", -1, 1, 0, 2, Q("5.2075 mm")),
    Sketcher.Constraint("DistanceY", -1, 1, 18, 1, Q("8.142298 mm")),
    Sketcher.Constraint("DistanceX", 7, 3, 0, 3, Q("20.208799 mm")),
    Sketcher.Constraint("DistanceX", 1, 2, 0, 2, Q("5.267298 mm")),
    Sketcher.Constraint("DistanceX", 3, 2, 0, 3, Q("16.469399 mm")),
    Sketcher.Constraint("DistanceY", 6, 2, 10, 1, Q("0.206702 mm")),
    Sketcher.Constraint("DistanceX", 10, 1, 7, 2, Q("2.080801 mm")),
    Sketcher.Constraint("DistanceY", 5, 2, 12, 2, Q("0.194499 mm")),
    Sketcher.Constraint("DistanceX", 13, 2, 12, 2, Q("2.582601 mm")),
    Sketcher.Constraint("Distance", 12, Q("0.272239 mm")),
    Sketcher.Constraint("Distance", 14, Q("2.49263 mm")),
    Sketcher.Constraint("DistanceX", -1, 1, 0, 3, Q("9.513171 mm")),
    Sketcher.Constraint("DistanceY", 0, 3, -1, 1, Q("7.977111 mm")),
    Sketcher.Constraint("DistanceX", 4, 2, -1, 1, Q("4.165821 mm")),
    Sketcher.Constraint("DistanceY", 4, 2, -1, 1, Q("0.637589 mm")),
    Sketcher.Constraint("DistanceX", 5, 2, -1, 1, Q("4.152012 mm")),
    Sketcher.Constraint("DistanceY", -1, 1, 9, 2, Q("6.975059 mm")),
    Sketcher.Constraint("DistanceX", 11, 2, -1, 1, Q("4.152012 mm")),
    Sketcher.Constraint("DistanceX", 14, 2, -1, 1, Q("8.606112 mm")),
    Sketcher.Constraint("DistanceX", 15, 2, -1, 1, Q("7.11823 mm")),
    Sketcher.Constraint("DistanceX", 17, 2, -1, 1, Q("1.850592 mm")),
    Sketcher.Constraint("DistanceX", -1, 1, 19, 1, Q("1.538741 mm")),
    Sketcher.Constraint("DistanceY", 2, 2, 1, 2, Q("1.48116 mm")),
    Sketcher.Constraint("DistanceY", 0, 3, 3, 2, Q("4.821019 mm")),
    Sketcher.Constraint("DistanceY", 1, 2, 6, 2, Q("2.556948 mm")),
    Sketcher.Constraint("DistanceY", 13, 2, 2, 2, Q("1.874412 mm")),
    Sketcher.Constraint("DistanceY", 15, 2, 1, 2, Q("0.210478 mm")),
    Sketcher.Constraint("DistanceY", 1, 2, 16, 2, Q("0.001449 mm")),
    Sketcher.Constraint("DistanceX", 2, 2, 16, 2, Q("2.12789 mm")),
    Sketcher.Constraint("DistanceX", 16, 2, 12, 2, Q("2.522848 mm")),
])
pad5 = body3.newObject("PartDesign::Pad", "Pad004")
pad5.Profile = sketch5
pad5.setExpression("Length", "Params.pad5_length")

doc.recompute()
